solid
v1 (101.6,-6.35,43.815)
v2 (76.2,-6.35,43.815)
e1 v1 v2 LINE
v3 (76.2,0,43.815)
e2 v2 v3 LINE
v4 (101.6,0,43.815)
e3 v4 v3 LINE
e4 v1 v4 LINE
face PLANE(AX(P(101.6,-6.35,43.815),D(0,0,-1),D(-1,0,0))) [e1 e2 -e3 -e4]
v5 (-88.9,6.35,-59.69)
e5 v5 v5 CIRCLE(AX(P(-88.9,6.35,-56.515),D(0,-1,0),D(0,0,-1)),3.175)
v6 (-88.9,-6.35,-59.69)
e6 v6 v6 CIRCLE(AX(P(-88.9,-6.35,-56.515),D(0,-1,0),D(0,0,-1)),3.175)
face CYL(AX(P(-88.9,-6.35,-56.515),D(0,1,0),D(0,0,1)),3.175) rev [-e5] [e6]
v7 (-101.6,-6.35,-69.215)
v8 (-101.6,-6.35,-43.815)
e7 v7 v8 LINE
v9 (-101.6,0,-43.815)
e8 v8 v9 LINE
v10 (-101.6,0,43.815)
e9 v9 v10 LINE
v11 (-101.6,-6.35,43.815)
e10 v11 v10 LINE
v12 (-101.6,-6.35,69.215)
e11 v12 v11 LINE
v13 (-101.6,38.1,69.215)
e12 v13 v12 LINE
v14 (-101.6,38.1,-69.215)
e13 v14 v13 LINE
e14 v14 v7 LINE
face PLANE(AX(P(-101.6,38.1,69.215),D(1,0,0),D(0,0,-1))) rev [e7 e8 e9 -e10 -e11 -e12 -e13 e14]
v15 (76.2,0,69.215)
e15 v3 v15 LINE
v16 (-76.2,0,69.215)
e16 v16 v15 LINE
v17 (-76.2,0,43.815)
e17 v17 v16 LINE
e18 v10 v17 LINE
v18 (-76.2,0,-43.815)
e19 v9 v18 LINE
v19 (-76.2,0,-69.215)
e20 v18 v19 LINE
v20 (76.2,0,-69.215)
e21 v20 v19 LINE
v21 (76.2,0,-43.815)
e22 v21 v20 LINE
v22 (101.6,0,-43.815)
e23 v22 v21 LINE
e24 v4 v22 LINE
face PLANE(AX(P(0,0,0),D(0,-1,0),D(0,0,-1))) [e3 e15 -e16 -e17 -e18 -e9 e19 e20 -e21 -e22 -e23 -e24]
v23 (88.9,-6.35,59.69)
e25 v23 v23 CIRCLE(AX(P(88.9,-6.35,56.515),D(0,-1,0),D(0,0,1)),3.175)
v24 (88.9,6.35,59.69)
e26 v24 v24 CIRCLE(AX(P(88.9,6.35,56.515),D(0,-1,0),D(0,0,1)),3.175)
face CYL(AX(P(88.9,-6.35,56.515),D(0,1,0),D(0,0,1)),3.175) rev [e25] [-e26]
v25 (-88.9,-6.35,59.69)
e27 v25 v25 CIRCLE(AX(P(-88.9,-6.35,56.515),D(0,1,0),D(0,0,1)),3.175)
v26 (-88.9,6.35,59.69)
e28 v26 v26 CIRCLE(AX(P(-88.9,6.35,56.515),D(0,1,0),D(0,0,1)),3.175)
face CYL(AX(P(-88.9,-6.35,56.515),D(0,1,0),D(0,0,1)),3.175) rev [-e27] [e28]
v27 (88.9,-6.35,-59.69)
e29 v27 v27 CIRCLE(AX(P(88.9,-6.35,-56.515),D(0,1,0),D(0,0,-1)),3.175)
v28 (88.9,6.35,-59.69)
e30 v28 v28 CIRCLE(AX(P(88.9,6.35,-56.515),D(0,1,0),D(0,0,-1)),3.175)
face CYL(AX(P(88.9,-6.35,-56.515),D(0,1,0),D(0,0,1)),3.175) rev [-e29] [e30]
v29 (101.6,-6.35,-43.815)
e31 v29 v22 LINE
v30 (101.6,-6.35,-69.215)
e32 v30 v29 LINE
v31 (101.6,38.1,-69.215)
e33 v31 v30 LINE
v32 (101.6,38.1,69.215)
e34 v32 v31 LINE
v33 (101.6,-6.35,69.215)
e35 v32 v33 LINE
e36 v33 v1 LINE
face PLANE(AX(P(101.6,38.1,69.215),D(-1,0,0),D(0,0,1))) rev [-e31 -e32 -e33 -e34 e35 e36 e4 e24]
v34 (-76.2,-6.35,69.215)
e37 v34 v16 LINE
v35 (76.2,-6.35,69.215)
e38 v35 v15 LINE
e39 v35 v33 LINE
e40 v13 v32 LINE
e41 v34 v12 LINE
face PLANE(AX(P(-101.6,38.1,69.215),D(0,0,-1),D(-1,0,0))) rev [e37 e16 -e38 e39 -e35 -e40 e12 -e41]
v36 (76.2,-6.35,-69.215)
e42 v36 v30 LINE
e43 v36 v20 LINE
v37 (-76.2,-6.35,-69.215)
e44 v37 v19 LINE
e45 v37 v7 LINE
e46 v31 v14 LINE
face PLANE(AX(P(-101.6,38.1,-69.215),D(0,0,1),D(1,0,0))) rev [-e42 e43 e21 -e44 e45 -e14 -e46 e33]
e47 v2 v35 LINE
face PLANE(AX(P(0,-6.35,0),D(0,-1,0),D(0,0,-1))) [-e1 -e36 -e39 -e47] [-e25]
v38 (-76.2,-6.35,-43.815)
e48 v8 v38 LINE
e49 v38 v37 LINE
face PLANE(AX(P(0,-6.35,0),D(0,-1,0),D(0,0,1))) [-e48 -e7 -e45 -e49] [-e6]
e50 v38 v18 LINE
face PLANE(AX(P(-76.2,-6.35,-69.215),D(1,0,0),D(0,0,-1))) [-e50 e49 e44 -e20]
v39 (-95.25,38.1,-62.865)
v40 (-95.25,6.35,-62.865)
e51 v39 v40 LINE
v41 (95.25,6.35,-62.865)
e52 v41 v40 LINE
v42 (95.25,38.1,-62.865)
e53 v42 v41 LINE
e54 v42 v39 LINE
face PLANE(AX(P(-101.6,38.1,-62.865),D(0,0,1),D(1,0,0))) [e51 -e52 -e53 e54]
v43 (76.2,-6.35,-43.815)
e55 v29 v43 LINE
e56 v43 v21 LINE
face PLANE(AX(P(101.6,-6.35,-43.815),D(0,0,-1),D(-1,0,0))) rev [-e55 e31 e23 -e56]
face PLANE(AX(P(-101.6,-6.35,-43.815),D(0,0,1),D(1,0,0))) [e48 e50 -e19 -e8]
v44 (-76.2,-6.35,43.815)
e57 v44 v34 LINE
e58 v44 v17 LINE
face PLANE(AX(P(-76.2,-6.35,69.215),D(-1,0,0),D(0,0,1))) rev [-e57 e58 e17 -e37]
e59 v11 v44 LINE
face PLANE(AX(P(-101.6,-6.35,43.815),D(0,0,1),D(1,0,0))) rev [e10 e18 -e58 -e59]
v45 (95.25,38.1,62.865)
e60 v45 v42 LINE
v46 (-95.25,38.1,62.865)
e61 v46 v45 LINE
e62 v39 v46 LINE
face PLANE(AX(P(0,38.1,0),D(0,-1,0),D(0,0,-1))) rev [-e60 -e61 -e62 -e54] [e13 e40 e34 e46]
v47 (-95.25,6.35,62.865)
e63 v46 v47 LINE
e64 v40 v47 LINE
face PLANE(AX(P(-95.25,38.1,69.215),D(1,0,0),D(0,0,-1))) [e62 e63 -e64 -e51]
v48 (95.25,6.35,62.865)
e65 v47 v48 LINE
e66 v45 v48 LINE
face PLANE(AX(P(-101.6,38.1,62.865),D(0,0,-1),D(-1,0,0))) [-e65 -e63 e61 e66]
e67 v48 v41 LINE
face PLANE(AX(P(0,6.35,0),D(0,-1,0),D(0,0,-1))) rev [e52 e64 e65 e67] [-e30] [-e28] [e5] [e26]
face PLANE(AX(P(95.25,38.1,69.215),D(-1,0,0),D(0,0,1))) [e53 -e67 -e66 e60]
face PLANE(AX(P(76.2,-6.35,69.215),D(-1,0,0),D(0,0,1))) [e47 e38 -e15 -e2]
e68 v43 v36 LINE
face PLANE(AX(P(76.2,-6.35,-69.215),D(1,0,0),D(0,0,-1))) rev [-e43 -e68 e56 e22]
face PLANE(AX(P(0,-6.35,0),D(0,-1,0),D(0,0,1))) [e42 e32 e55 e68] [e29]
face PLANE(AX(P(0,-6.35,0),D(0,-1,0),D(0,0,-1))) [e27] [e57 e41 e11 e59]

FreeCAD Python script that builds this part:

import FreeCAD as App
import Part
import Sketcher
from FreeCAD import Vector
Q = App.Units.Quantity


def faces_at(feature, points):
    """Names of the faces that lie closest to the given points."""
    faces = feature.Shape.Faces
    near = lambda p: min(range(len(faces)), key=lambda i: faces[i].distToShape(Part.Vertex(*p))[0])
    return sorted({f"Face{near(p) + 1}" for p in points})

doc = App.newDocument("Part")
body = doc.addObject("PartDesign::Body", "Body")

# Sketch on XZ plane
sketch1 = body.newObject("Sketcher::SketchObject", "Sketch")
sketch1.AttachmentSupport = (doc.getObject("XZ_Plane"), [""])
sketch1.MapMode = "FlatFace"
sketch1.addGeometry(Part.LineSegment(Vector(-102, -69, 0), Vector(-102, 69, 0)), False)
sketch1.addGeometry(Part.LineSegment(Vector(-102, 69, 0), Vector(102, 69, 0)), False)
sketch1.addGeometry(Part.LineSegment(Vector(102, 69, 0), Vector(102, -69, 0)), False)
sketch1.addGeometry(Part.LineSegment(Vector(102, -69, 0), Vector(-102, -69, 0)), False)
sketch1.addConstraint(Sketcher.Constraint("Coincident", 0, 2, 1, 1))
sketch1.addConstraint(Sketcher.Constraint("Coincident", 1, 2, 2, 1))
sketch1.addConstraint(Sketcher.Constraint("Coincident", 2, 2, 3, 1))
sketch1.addConstraint(Sketcher.Constraint("Coincident", 3, 2, 0, 1))
sketch1.addConstraint(Sketcher.Constraint("Vertical", 0))
sketch1.addConstraint(Sketcher.Constraint("Horizontal", 1))
sketch1.addConstraint(Sketcher.Constraint("Vertical", 2))
sketch1.addConstraint(Sketcher.Constraint("Horizontal", 3))
sketch1.addConstraint(Sketcher.Constraint("Symmetric", 0, 2, 2, 2, -1, 1))
sketch1.addConstraint(Sketcher.Constraint("DistanceX", 1, 1, 1, 2, Q("8 in")))
sketch1.addConstraint(Sketcher.Constraint("DistanceY", 0, 1, 0, 2, Q("5.45 in")))
pad1 = body.newObject("PartDesign::Pad", "Pad")
pad1.Profile = sketch1
pad1.Length = Q("1.5 in")
pad1.Reversed = True
doc.recompute()

thickness = body.newObject("PartDesign::Thickness", "Thickness")
thickness.Base = (pad1, faces_at(pad1, [(0, 38.1, 0)]))
thickness.Value = Q("0.25 in")
thickness.Reversed = True
thickness.Join = "Intersection"

# Sketch on XZ plane
sketch2 = body.newObject("Sketcher::SketchObject", "Sketch001")
sketch2.AttachmentSupport = (doc.getObject("XZ_Plane"), [""])
sketch2.MapMode = "FlatFace"
sketch2.addGeometry(Part.LineSegment(Vector(-102, 69, 0), Vector(-102, 44, 0)), False)
sketch2.addGeometry(Part.LineSegment(Vector(-102, 44, 0), Vector(-76, 44, 0)), False)
sketch2.addGeometry(Part.LineSegment(Vector(-76, 44, 0), Vector(-76, 69, 0)), False)
sketch2.addGeometry(Part.LineSegment(Vector(-76, 69, 0), Vector(-102, 69, 0)), False)
sketch2.addConstraint(Sketcher.Constraint("Coincident", 0, 2, 1, 1))
sketch2.addConstraint(Sketcher.Constraint("Coincident", 1, 2, 2, 1))
sketch2.addConstraint(Sketcher.Constraint("Coincident", 2, 2, 3, 1))
sketch2.addConstraint(Sketcher.Constraint("Coincident", 3, 2, 0, 1))
sketch2.addConstraint(Sketcher.Constraint("Vertical", 0))
sketch2.addConstraint(Sketcher.Constraint("Horizontal", 1))
sketch2.addConstraint(Sketcher.Constraint("Vertical", 2))
sketch2.addConstraint(Sketcher.Constraint("Horizontal", 3))
sketch2.addConstraint(Sketcher.Constraint("Equal", 3, 0))
sketch2.addConstraint(Sketcher.Constraint("DistanceX", 1, 1, 1, 2, Q("1 in")))
sketch2.addConstraint(Sketcher.Constraint("DistanceX", 0, 2, -1, 1, Q("4 in")))
sketch2.addConstraint(Sketcher.Constraint("DistanceY", -1, 1, 0, 2, Q("1.725 in")))
pad2 = body.newObject("PartDesign::Pad", "Pad001")
pad2.Profile = sketch2
pad2.Length = Q("0.25 in")

# Sketch on XZ plane
sketch3 = body.newObject("Sketcher::SketchObject", "Sketch002")
sketch3.AttachmentSupport = (doc.getObject("XZ_Plane"), [""])
sketch3.MapMode = "FlatFace"
sketch3.AttachmentOffset = App.Placement(Vector(0, 0, -0.25 * 25.4), App.Rotation())
sketch3.addGeometry(Part.Circle(Vector(-88.9, 56.5, 0), Vector(0, 0, 1), 3.2), False)
sketch3.addConstraint(Sketcher.Constraint("Diameter", 0, Q("0.25 in")))
sketch3.addConstraint(Sketcher.Constraint("DistanceX", 0, 3, -1, 1, Q("3.5 in")))
sketch3.addConstraint(Sketcher.Constraint("DistanceY", -1, 1, 0, 3, Q("2.225 in")))
pocket1 = body.newObject("PartDesign::Pocket", "Pocket")
pocket1.Profile = sketch3
pocket1.Type = "ThroughAll"
pocket1.Reversed = True
doc.recompute()

mirrored = body.newObject("PartDesign::Mirrored", "Mirrored")
mirrored.Originals = [pad2, pocket1]
mirrored.MirrorPlane = (doc.getObject("YZ_Plane"), [""])
body.Tip = mirrored
doc.recompute()

mirrored2 = body.newObject("PartDesign::Mirrored", "Mirrored001")
mirrored2.Originals = [pad2, pocket1]
mirrored2.MirrorPlane = (doc.getObject("XY_Plane"), [""])
body.Tip = mirrored2

# Sketch on XZ plane
sketch4 = body.newObject("Sketcher::SketchObject", "Sketch003")
sketch4.AttachmentSupport = (doc.getObject("XZ_Plane"), [""])
sketch4.MapMode = "FlatFace"
sketch4.addGeometry(Part.LineSegment(Vector(102, -69, 0), Vector(102, -44, 0)), False)
sketch4.addGeometry(Part.LineSegment(Vector(102, -44, 0), Vector(76, -44, 0)), False)
sketch4.addGeometry(Part.LineSegment(Vector(76, -44, 0), Vector(76, -69, 0)), False)
sketch4.addGeometry(Part.LineSegment(Vector(76, -69, 0), Vector(102, -69, 0)), False)
sketch4.addConstraint(Sketcher.Constraint("Coincident", 0, 2, 1, 1))
sketch4.addConstraint(Sketcher.Constraint("Coincident", 1, 2, 2, 1))
sketch4.addConstraint(Sketcher.Constraint("Coincident", 2, 2, 3, 1))
sketch4.addConstraint(Sketcher.Constraint("Coincident", 3, 2, 0, 1))
sketch4.addConstraint(Sketcher.Constraint("Vertical", 0))
sketch4.addConstraint(Sketcher.Constraint("Horizontal", 1))
sketch4.addConstraint(Sketcher.Constraint("Vertical", 2))
sketch4.addConstraint(Sketcher.Constraint("Horizontal", 3))
sketch4.addConstraint(Sketcher.Constraint("Equal", 3, 0))
sketch4.addConstraint(Sketcher.Constraint("DistanceX", 1, 2, 1, 1, Q("1 in")))
sketch4.addConstraint(Sketcher.Constraint("DistanceX", -1, 1, 0, 2, Q("4 in")))
sketch4.addConstraint(Sketcher.Constraint("DistanceY", 0, 2, -1, 1, Q("1.725 in")))
pad3 = body.newObject("PartDesign::Pad", "Pad002")
pad3.Profile = sketch4
pad3.Length = Q("0.25 in")

# Sketch on XZ plane
sketch5 = body.newObject("Sketcher::SketchObject", "Sketch004")
sketch5.AttachmentSupport = (doc.getObject("XZ_Plane"), [""])
sketch5.MapMode = "FlatFace"
sketch5.AttachmentOffset = App.Placement(Vector(0, 0, -0.25 * 25.4), App.Rotation())
sketch5.addGeometry(Part.Circle(Vector(88.9, -56.5, 0), Vector(0, 0, 1), 3.2), False)
sketch5.addConstraint(Sketcher.Constraint("Diameter", 0, Q("0.25 in")))
sketch5.addConstraint(Sketcher.Constraint("DistanceX", -1, 1, 0, 3, Q("3.5 in")))
sketch5.addConstraint(Sketcher.Constraint("DistanceY", 0, 3, -1, 1, Q("2.225 in")))
pocket2 = body.newObject("PartDesign::Pocket", "Pocket001")
pocket2.Profile = sketch5
pocket2.Type = "ThroughAll"
pocket2.Reversed = True

doc.recompute()
